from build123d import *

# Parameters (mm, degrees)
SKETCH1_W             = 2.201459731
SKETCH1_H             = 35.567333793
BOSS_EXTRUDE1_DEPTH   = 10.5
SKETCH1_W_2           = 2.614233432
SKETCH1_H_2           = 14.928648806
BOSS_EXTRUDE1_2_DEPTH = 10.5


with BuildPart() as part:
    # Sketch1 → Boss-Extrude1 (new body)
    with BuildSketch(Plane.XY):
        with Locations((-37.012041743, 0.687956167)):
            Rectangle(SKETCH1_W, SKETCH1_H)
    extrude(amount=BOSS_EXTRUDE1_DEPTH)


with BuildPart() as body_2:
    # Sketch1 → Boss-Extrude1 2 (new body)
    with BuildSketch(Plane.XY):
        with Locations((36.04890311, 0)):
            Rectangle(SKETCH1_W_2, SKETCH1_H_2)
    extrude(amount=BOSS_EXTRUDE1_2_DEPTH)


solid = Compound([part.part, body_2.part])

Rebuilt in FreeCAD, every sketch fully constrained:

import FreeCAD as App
import Part
import Sketcher

V = App.Vector
Q = App.Units.Quantity


def add_polygon(sketch, points):
    """Adds a closed chain of lines whose ends are joined by coincident constraints."""
    first, n = sketch.GeometryCount, len(points)
    for a, b in zip(points, points[1:] + points[:1]):
        sketch.addGeometry(Part.LineSegment(App.Vector(*a, 0), App.Vector(*b, 0)), False)
    for i in range(n):
        sketch.addConstraint(Sketcher.Constraint("Coincident", first + i, 2, first + (i + 1) % n, 1))

doc = App.newDocument("Part")
params = doc.addObject("Spreadsheet::Sheet", "Params")
for row, (alias, value) in enumerate([
    ("pad1_length", "10.5 mm"),
    ("pad2_length", "10.5 mm"),
], start=1):
    params.set(f"A{row}", alias)
    params.set(f"B{row}", "=" + value)
    params.setAlias(f"B{row}", alias)

body = doc.addObject("PartDesign::Body", "Body")

# Sketch on XY plane
sketch1 = body.newObject("Sketcher::SketchObject", "Sketch")
sketch1.AttachmentSupport = (doc.getObject("XY_Plane"), [""])
sketch1.MapMode = "FlatFace"
add_polygon(sketch1, [(-38.1, 18.5), (-38.1, -17.1), (-35.9, -17.1), (-35.9, 18.5)])  # lines 0-3
sketch1.addConstraint([
    Sketcher.Constraint("Vertical", 0),
    Sketcher.Constraint("Horizontal", 1),
    Sketcher.Constraint("Vertical", 2),
    Sketcher.Constraint("Horizontal", 3),
    Sketcher.Constraint("DistanceX", 1, 1, 1, 2, Q("2.20146 mm")),
    Sketcher.Constraint("DistanceY", 0, 2, 0, 1, Q("35.567334 mm")),
    Sketcher.Constraint("DistanceX", 0, 2, -1, 1, Q("38.112772 mm")),
    Sketcher.Constraint("DistanceY", 0, 2, -1, 1, Q("17.095711 mm")),
])
pad1 = body.newObject("PartDesign::Pad", "Pad")
pad1.Profile = sketch1
pad1.setExpression("Length", "Params.pad1_length")
body2 = doc.addObject("PartDesign::Body", "Body001")

# Sketch on XY plane
sketch2 = body2.newObject("Sketcher::SketchObject", "Sketch001")
sketch2.AttachmentSupport = (doc.getObject("XY_Plane001"), [""])
sketch2.MapMode = "FlatFace"
add_polygon(sketch2, [(34.7, 7.5), (34.7, -7.5), (37.4, -7.5), (37.4, 7.5)])  # lines 0-3
sketch2.addConstraint([
    Sketcher.Constraint("Vertical", 0),
    Sketcher.Constraint("Horizontal", 1),
    Sketcher.Constraint("Vertical", 2),
    Sketcher.Constraint("Horizontal", 3),
    Sketcher.Constraint("DistanceY", 0, 2, 0, 1, Q("14.928649 mm")),
    Sketcher.Constraint("DistanceX", 1, 1, 1, 2, Q("2.614233 mm")),
    Sketcher.Constraint("DistanceX", -1, 1, 1, 2, Q("37.35602 mm")),
    Sketcher.Constraint("DistanceY", 0, 2, -1, 1, Q("7.464324 mm")),
])
pad2 = body2.newObject("PartDesign::Pad", "Pad001")
pad2.Profile = sketch2
pad2.setExpression("Length", "Params.pad2_length")

doc.recompute()
